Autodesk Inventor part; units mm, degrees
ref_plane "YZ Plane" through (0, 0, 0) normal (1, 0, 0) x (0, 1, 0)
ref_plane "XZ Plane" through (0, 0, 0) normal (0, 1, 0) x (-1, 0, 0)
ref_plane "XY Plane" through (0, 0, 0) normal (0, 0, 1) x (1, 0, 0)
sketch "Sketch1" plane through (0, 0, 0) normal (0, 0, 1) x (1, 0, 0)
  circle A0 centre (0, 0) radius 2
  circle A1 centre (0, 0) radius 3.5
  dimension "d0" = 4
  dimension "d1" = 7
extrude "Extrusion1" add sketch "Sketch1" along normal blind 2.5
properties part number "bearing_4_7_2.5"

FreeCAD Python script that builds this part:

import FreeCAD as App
import Part
import Sketcher
from FreeCAD import Vector

doc = App.newDocument("Part")
body = doc.addObject("PartDesign::Body", "Body")

# Sketch on XY plane
sketch1 = doc.addObject("Sketcher::SketchObject", "Sketch")
body.addObject(sketch1)
sketch1.AttachmentSupport = (doc.XY_Plane, [""])
sketch1.MapMode = "FlatFace"
sketch1.addGeometry(Part.Circle(Vector(0, 0, 0), Vector(0, 0, 1), 3.5), False)
sketch1.addGeometry(Part.Circle(Vector(0, 0, 0), Vector(0, 0, 1), 2), False)
sketch1.addConstraint(Sketcher.Constraint("Coincident", 0, 3, -1, 1))
sketch1.addConstraint(Sketcher.Constraint("Coincident", 1, 3, -1, 1))
sketch1.addConstraint(Sketcher.Constraint("Diameter", 0, 7.0))
sketch1.addConstraint(Sketcher.Constraint("Diameter", 1, 4.0))
pad1 = doc.addObject("PartDesign::Pad", "Pad")
body.addObject(pad1)
pad1.Profile = sketch1
pad1.Length = 2.5

doc.recompute()
